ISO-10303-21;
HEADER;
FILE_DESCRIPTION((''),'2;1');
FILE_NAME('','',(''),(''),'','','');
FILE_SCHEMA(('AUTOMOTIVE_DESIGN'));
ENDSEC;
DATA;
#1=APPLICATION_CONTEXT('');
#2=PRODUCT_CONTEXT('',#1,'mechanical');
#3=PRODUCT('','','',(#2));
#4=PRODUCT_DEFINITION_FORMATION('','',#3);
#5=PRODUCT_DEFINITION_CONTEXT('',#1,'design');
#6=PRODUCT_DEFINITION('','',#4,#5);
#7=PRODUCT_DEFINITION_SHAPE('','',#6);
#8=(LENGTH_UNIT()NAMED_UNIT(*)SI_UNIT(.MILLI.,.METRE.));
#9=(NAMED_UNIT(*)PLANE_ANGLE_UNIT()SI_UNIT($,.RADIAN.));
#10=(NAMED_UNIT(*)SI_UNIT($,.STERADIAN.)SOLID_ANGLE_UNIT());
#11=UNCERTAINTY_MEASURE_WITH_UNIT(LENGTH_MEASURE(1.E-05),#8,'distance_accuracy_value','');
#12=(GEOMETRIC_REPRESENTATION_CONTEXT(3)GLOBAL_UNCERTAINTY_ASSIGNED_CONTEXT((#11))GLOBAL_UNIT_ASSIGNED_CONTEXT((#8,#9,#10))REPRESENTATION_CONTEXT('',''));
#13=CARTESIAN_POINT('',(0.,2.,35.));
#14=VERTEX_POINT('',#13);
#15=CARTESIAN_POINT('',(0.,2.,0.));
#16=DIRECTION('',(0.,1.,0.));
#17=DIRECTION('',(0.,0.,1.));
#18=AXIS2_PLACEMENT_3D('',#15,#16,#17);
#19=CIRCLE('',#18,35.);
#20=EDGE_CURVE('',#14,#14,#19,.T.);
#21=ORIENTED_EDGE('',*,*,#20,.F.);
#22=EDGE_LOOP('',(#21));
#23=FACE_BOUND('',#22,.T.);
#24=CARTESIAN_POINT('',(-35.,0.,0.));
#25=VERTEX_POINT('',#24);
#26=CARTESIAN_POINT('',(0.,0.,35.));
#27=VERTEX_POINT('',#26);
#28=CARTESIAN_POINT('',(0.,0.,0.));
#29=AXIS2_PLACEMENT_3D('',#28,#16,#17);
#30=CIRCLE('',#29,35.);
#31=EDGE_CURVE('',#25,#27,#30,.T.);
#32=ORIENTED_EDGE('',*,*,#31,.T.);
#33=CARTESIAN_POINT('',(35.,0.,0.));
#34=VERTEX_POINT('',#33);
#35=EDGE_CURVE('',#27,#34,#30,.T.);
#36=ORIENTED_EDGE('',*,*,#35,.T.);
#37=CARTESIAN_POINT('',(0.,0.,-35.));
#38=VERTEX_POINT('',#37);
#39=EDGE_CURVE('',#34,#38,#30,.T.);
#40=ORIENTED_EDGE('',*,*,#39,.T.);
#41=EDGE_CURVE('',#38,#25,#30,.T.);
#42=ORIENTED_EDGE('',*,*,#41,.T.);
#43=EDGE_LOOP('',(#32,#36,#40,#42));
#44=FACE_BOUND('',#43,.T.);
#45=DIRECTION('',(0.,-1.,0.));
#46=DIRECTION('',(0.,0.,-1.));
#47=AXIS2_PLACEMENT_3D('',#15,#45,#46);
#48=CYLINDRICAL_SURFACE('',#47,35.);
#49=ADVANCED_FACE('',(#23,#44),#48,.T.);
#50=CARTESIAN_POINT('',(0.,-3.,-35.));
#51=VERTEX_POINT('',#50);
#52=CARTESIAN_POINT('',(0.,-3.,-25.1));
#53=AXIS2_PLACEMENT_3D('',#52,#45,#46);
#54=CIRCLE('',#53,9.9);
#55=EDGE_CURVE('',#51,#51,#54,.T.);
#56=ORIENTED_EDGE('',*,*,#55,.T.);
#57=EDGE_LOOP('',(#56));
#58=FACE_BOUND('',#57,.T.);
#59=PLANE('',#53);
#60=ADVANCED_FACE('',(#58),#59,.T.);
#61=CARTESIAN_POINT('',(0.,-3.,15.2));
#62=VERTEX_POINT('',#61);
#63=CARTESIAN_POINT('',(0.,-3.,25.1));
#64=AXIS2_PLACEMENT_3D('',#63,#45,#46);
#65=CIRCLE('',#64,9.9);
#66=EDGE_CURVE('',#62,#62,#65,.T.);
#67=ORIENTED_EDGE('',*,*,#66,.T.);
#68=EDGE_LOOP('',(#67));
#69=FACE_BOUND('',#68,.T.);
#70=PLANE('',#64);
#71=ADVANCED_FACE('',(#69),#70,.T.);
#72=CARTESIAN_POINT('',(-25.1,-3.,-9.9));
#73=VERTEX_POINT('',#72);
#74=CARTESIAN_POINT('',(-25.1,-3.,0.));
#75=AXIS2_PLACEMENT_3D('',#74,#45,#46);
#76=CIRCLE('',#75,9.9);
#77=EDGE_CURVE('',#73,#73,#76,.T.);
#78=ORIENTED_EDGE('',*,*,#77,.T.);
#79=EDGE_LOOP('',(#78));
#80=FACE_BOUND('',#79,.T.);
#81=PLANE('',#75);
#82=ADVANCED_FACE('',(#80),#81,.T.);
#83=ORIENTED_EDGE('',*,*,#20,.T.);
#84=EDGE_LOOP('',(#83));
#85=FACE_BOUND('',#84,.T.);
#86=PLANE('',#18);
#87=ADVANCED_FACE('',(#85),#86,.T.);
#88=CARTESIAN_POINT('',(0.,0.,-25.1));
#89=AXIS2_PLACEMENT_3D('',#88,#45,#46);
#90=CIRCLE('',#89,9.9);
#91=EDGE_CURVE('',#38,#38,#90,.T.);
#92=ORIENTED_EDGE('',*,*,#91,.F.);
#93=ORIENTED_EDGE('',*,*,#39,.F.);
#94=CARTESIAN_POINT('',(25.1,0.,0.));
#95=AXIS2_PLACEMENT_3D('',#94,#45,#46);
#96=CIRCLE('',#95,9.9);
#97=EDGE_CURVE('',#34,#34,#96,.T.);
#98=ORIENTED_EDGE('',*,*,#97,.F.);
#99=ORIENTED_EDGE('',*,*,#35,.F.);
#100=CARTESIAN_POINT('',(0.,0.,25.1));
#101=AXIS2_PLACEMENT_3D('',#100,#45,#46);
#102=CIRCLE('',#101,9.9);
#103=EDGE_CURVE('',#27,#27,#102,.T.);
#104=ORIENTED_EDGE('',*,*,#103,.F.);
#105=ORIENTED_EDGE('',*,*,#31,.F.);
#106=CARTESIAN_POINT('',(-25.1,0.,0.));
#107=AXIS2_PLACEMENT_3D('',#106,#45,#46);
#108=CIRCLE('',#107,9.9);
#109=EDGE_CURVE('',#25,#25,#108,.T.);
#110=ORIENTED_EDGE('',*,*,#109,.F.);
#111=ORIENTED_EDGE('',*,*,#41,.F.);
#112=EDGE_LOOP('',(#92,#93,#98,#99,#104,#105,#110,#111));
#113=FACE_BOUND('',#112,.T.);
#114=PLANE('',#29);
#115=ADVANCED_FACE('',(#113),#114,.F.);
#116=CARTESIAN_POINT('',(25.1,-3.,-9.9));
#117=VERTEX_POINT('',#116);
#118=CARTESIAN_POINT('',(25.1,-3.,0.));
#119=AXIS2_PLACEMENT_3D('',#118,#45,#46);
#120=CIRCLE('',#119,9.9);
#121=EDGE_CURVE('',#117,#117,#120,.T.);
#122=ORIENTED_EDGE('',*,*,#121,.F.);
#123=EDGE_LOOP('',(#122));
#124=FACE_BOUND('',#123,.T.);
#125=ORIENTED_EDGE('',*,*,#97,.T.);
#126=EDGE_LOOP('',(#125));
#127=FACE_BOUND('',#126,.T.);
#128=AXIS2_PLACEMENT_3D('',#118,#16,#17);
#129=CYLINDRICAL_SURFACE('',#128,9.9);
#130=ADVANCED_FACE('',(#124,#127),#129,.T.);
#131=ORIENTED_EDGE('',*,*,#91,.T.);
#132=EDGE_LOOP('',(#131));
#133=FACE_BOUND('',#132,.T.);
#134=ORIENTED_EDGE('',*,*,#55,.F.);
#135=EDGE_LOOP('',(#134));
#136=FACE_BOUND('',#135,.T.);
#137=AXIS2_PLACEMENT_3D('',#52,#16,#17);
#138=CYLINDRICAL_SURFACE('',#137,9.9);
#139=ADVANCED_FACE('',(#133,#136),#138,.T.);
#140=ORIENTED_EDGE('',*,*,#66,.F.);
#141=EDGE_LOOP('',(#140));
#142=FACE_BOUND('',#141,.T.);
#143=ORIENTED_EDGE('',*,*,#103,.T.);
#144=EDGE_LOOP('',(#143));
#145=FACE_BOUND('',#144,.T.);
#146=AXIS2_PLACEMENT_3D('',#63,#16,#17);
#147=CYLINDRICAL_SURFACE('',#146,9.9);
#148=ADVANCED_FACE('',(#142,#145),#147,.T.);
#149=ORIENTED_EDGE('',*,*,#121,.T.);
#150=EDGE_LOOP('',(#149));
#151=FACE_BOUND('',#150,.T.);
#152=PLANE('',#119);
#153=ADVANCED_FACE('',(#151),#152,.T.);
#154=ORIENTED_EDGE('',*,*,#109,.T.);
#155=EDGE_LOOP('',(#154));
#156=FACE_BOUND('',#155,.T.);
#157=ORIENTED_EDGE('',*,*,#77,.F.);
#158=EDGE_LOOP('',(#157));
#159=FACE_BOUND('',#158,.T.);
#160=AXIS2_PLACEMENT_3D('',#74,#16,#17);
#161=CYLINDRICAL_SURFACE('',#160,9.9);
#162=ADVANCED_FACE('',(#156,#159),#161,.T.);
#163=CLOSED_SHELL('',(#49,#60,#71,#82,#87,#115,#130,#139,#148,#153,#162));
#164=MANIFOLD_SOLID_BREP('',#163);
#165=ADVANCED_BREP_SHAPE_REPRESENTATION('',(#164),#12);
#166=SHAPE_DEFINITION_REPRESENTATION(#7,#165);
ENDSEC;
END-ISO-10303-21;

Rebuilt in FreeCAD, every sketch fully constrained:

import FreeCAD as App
import Part
import Sketcher
from FreeCAD import Vector
Q = App.Units.Quantity

doc = App.newDocument("Part")
params = doc.addObject("Spreadsheet::Sheet", "Params")
for row, (alias, value) in enumerate([
    ("sketch1_diameter", "70 mm"),
    ("pad1_length", "2 mm"),
    ("sketch2_diameter", "19.8 mm"),
    ("pad2_length", "3 mm"),
], start=1):
    params.set(f"A{row}", alias)
    params.set(f"B{row}", "=" + value)
    params.setAlias(f"B{row}", alias)

body = doc.addObject("PartDesign::Body", "Body")

# Sketch on XZ plane
sketch1 = body.newObject("Sketcher::SketchObject", "Sketch")
sketch1.AttachmentSupport = (doc.getObject("XZ_Plane"), [""])
sketch1.MapMode = "FlatFace"
sketch1.addGeometry(Part.Circle(Vector(0, 0, 0), Vector(0, 0, 1), 35), False)
sketch1.addConstraint(Sketcher.Constraint("Coincident", 0, 3, -1, 1))
sketch1.addConstraint(Sketcher.Constraint("Diameter", 0, Q("70 mm")))
sketch1.setExpression("Constraints[1]", "Params.sketch1_diameter")
pad1 = body.newObject("PartDesign::Pad", "Pad")
pad1.Profile = sketch1
pad1.setExpression("Length", "Params.pad1_length")
pad1.Reversed = True

# Sketch on XZ plane
sketch2 = body.newObject("Sketcher::SketchObject", "Sketch001")
sketch2.AttachmentSupport = (doc.getObject("XZ_Plane"), [""])
sketch2.MapMode = "FlatFace"
sketch2.addGeometry(Part.Circle(Vector(25, 0, 0), Vector(0, 0, 1), 10), False)
sketch2.addGeometry(Part.Circle(Vector(0, -25, 0), Vector(0, 0, 1), 10), False)
sketch2.addGeometry(Part.Circle(Vector(-25, 0, 0), Vector(0, 0, 1), 10), False)
sketch2.addGeometry(Part.Circle(Vector(0, 25, 0), Vector(0, 0, 1), 10), False)
sketch2.addConstraint(Sketcher.Constraint("Equal", 0, 1))
sketch2.addConstraint(Sketcher.Constraint("Equal", 1, 2))
sketch2.addConstraint(Sketcher.Constraint("Equal", 2, 3))
sketch2.addConstraint(Sketcher.Constraint("Symmetric", 0, 3, 2, 3, -1, 1))
sketch2.addConstraint(Sketcher.Constraint("Symmetric", 1, 3, 3, 3, -1, 1))
sketch2.addConstraint(Sketcher.Constraint("PointOnObject", 0, 3, -1))
sketch2.addConstraint(Sketcher.Constraint("PointOnObject", 1, 3, -2))
sketch2.addConstraint(Sketcher.Constraint("Diameter", 0, Q("19.8 mm")))
sketch2.addConstraint(Sketcher.Constraint("DistanceX", -1, 1, 0, 3, Q("25.1 mm")))
sketch2.addConstraint(Sketcher.Constraint("DistanceY", 1, 3, -1, 1, Q("25.1 mm")))
sketch2.setExpression("Constraints[7]", "Params.sketch2_diameter")
pad2 = body.newObject("PartDesign::Pad", "Pad001")
pad2.Profile = sketch2
pad2.setExpression("Length", "Params.pad2_length")

doc.recompute()
